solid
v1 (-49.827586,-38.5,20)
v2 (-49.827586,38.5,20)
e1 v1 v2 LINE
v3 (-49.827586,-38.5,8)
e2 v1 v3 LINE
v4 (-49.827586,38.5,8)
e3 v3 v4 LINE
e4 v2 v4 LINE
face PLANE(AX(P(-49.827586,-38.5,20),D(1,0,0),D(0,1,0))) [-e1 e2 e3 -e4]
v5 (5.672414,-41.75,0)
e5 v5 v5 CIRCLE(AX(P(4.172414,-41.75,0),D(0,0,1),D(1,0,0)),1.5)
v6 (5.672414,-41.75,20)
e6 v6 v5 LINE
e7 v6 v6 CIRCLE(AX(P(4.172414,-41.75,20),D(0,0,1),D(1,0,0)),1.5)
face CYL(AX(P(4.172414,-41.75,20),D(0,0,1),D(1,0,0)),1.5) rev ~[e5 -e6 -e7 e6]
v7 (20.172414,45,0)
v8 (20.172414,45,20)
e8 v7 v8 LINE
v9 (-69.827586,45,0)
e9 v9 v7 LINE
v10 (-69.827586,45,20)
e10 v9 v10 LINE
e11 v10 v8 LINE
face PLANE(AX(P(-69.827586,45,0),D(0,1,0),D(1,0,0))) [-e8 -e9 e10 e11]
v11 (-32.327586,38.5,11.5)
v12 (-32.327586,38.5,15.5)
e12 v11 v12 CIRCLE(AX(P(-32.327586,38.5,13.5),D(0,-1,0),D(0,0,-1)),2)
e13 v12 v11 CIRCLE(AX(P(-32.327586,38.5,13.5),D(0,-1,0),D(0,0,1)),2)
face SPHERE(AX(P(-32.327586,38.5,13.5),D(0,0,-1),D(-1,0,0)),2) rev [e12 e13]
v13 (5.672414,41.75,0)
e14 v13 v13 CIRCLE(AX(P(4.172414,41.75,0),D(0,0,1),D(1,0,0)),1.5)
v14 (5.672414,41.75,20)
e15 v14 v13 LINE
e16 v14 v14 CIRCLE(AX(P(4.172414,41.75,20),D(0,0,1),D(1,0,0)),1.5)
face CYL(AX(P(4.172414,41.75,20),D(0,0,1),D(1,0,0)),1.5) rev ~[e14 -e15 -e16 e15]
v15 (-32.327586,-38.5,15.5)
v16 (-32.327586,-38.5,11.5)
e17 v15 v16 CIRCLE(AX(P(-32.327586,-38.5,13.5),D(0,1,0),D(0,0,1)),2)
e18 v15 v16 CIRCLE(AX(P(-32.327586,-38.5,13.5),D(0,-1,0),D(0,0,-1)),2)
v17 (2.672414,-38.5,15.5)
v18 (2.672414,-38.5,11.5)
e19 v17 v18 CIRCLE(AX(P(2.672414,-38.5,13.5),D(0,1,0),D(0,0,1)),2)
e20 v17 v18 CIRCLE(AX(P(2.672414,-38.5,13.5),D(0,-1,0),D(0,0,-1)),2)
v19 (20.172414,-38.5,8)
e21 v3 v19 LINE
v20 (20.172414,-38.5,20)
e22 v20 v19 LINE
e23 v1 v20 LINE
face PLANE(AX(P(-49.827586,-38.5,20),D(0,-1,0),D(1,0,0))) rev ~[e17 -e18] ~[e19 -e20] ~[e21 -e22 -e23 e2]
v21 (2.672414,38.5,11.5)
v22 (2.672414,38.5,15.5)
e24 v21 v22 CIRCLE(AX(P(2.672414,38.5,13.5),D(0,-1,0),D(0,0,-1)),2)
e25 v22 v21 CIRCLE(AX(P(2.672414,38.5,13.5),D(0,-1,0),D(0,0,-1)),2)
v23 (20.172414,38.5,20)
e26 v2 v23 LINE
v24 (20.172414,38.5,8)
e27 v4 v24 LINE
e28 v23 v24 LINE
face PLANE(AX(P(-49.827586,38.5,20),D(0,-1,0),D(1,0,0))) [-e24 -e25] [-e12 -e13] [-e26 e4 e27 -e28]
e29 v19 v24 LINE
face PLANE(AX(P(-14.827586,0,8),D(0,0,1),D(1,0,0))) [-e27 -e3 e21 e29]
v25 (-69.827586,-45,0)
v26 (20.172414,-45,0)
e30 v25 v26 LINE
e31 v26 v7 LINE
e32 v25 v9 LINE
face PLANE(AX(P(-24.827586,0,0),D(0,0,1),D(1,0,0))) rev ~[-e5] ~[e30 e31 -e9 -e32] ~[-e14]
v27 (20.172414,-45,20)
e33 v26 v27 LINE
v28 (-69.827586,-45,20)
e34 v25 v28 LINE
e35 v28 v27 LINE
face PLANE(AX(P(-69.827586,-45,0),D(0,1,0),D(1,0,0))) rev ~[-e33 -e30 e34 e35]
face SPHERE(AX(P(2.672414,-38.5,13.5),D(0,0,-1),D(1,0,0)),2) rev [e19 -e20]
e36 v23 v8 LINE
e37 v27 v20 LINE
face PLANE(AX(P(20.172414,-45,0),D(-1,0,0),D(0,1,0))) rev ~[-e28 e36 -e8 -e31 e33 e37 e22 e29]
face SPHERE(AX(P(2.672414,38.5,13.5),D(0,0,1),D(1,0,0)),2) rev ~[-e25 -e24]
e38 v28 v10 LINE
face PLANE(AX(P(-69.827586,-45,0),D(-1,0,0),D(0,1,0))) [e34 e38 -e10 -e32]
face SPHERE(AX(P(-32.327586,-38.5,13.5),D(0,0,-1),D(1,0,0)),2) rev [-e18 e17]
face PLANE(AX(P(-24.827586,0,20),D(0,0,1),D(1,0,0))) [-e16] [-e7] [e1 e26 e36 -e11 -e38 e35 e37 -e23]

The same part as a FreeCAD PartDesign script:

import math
import FreeCAD as App
import Part
import Sketcher
Q = App.Units.Quantity

doc = App.newDocument("Part")
body = doc.addObject("PartDesign::Body", "Body")

sketch1 = body.newObject("Sketcher::SketchObject", "Sketch")
sketch1.AttachmentSupport = (doc.getObject("XY_Plane"), [""])
sketch1.MapMode = "FlatFace"
sketch1.addGeometry([
    Part.LineSegment(App.Vector(-70, 45, 0), App.Vector(-70, -45, 0)),
    Part.LineSegment(App.Vector(-70, -45, 0), App.Vector(20, -45, 0)),
    Part.LineSegment(App.Vector(20, -45, 0), App.Vector(20, 45, 0)),
    Part.LineSegment(App.Vector(20, 45, 0), App.Vector(-70, 45, 0)),
], False)
sketch1.addConstraint([
    Sketcher.Constraint("Coincident", 0, 2, 1, 1),
    Sketcher.Constraint("Coincident", 1, 2, 2, 1),
    Sketcher.Constraint("Coincident", 2, 2, 3, 1),
    Sketcher.Constraint("Coincident", 3, 2, 0, 1),
    Sketcher.Constraint("Vertical", 0),
    Sketcher.Constraint("Horizontal", 1),
    Sketcher.Constraint("Vertical", 2),
    Sketcher.Constraint("Horizontal", 3),
    Sketcher.Constraint("Equal", 3, 0),
    Sketcher.Constraint("DistanceX", 1, 1, 1, 2, Q("90 mm")),
    Sketcher.Constraint("DistanceY", 0, 2, -1, 1, Q("45 mm")),
    Sketcher.Constraint("DistanceX", 0, 2, -1, 1, Q("69.827586 mm")),
])
pad1 = body.newObject("PartDesign::Pad", "Pad")
pad1.Profile = sketch1
pad1.Length = 20

sketch2 = body.newObject("Sketcher::SketchObject", "Sketch001")
sketch2.AttachmentSupport = (doc.getObject("XY_Plane"), [""])
sketch2.MapMode = "FlatFace"
sketch2.AttachmentOffset = App.Placement(App.Vector(0, 0, 20), App.Rotation())
sketch2.addGeometry([
    Part.LineSegment(App.Vector(-50, 38, 0), App.Vector(-50, -38, 0)),
    Part.LineSegment(App.Vector(-50, -38, 0), App.Vector(20, -38, 0)),
    Part.LineSegment(App.Vector(20, -38, 0), App.Vector(20, 38, 0)),
    Part.LineSegment(App.Vector(20, 38, 0), App.Vector(-50, 38, 0)),
], False)
sketch2.addConstraint([
    Sketcher.Constraint("Coincident", 0, 2, 1, 1),
    Sketcher.Constraint("Coincident", 1, 2, 2, 1),
    Sketcher.Constraint("Coincident", 2, 2, 3, 1),
    Sketcher.Constraint("Coincident", 3, 2, 0, 1),
    Sketcher.Constraint("Vertical", 0),
    Sketcher.Constraint("Horizontal", 1),
    Sketcher.Constraint("Vertical", 2),
    Sketcher.Constraint("Horizontal", 3),
    Sketcher.Constraint("DistanceX", 1, 1, 1, 2, Q("70 mm")),
    Sketcher.Constraint("DistanceY", 0, 2, 0, 1, Q("77 mm")),
    Sketcher.Constraint("DistanceY", 0, 2, -1, 1, Q("38.5 mm")),
    Sketcher.Constraint("DistanceX", 0, 2, -1, 1, Q("49.827586 mm")),
])
pocket1 = body.newObject("PartDesign::Pocket", "Pocket")
pocket1.Profile = sketch2
pocket1.Length = 12

sketch3 = body.newObject("Sketcher::SketchObject", "Sketch002")
sketch3.AttachmentSupport = (doc.getObject("XZ_Plane"), [""])
sketch3.MapMode = "FlatFace"
sketch3.AttachmentOffset = App.Placement(App.Vector(0, 0, 38.5), App.Rotation())
sketch3.addGeometry([
    Part.LineSegment(App.Vector(-32.3, 11.5, 0), App.Vector(-32.3, 15.5, 0)),
    Part.ArcOfCircle(Part.Circle(App.Vector(-32.3, 13.5, 0), App.Vector(0, 0, 1), 2), math.radians(-90), math.radians(90)),
], False)
sketch3.addGeometry(Part.LineSegment(App.Vector(-32.3, 11.5, 0), App.Vector(-32.3, 15.5, 0)), True)
sketch3.addConstraint([
    Sketcher.Constraint("Coincident", 0, 1, 1, 1),
    Sketcher.Constraint("Coincident", 1, 2, 0, 2),
    Sketcher.Constraint("Vertical", 0),
    Sketcher.Constraint("Vertical", 2),
    Sketcher.Constraint("Coincident", 2, 1, 0, 1),
    Sketcher.Constraint("Vertical", 1, 3, 0, 1),
    Sketcher.Constraint("Equal", 0, 2),
    Sketcher.Constraint("Radius", 1, Q("2 mm")),
    Sketcher.Constraint("DistanceY", -1, 1, 1, 3, Q("13.5 mm")),
    Sketcher.Constraint("DistanceX", 1, 3, -1, 1, Q("32.327586 mm")),
])
groove = body.newObject("PartDesign::Groove", "Groove")
groove.Profile = sketch3
groove.ReferenceAxis = (sketch3, ["Axis0"])
groove.Angle = 360

sketch4 = body.newObject("Sketcher::SketchObject", "Sketch003")
sketch4.AttachmentSupport = (doc.getObject("XZ_Plane"), [""])
sketch4.MapMode = "FlatFace"
sketch4.AttachmentOffset = App.Placement(App.Vector(0, 0, 38.5), App.Rotation())
sketch4.addGeometry([
    Part.LineSegment(App.Vector(2.7, 11.5, 0), App.Vector(2.7, 15.5, 0)),
    Part.ArcOfCircle(Part.Circle(App.Vector(2.7, 13.5, 0), App.Vector(0, 0, 1), 2), math.radians(-90), math.radians(90)),
], False)
sketch4.addGeometry(Part.LineSegment(App.Vector(2.7, 11.5, 0), App.Vector(2.7, 15.5, 0)), True)
sketch4.addConstraint([
    Sketcher.Constraint("Coincident", 0, 1, 1, 1),
    Sketcher.Constraint("Coincident", 1, 2, 0, 2),
    Sketcher.Constraint("Vertical", 0),
    Sketcher.Constraint("Vertical", 2),
    Sketcher.Constraint("Coincident", 2, 1, 0, 1),
    Sketcher.Constraint("Vertical", 1, 3, 0, 1),
    Sketcher.Constraint("Equal", 0, 2),
    Sketcher.Constraint("Radius", 1, Q("2 mm")),
    Sketcher.Constraint("DistanceY", -1, 1, 1, 3, Q("13.5 mm")),
    Sketcher.Constraint("DistanceX", -1, 1, 1, 3, Q("2.672414 mm")),
])
groove2 = body.newObject("PartDesign::Groove", "Groove001")
groove2.Profile = sketch4
groove2.ReferenceAxis = (sketch4, ["Axis0"])
groove2.Angle = 360

sketch5 = body.newObject("Sketcher::SketchObject", "Sketch004")
sketch5.AttachmentSupport = (doc.getObject("XZ_Plane"), [""])
sketch5.MapMode = "FlatFace"
sketch5.AttachmentOffset = App.Placement(App.Vector(0, 0, -38.5), App.Rotation())
sketch5.addGeometry([
    Part.LineSegment(App.Vector(2.7, 15.5, 0), App.Vector(2.7, 11.5, 0)),
    Part.ArcOfCircle(Part.Circle(App.Vector(2.7, 13.5, 0), App.Vector(0, 0, 1), 2), math.radians(-90), math.radians(90)),
], False)
sketch5.addGeometry(Part.LineSegment(App.Vector(2.7, 11.5, 0), App.Vector(2.7, 15.5, 0)), True)
sketch5.addConstraint([
    Sketcher.Constraint("Coincident", 0, 1, 1, 2),
    Sketcher.Constraint("Coincident", 1, 1, 0, 2),
    Sketcher.Constraint("Vertical", 0),
    Sketcher.Constraint("Vertical", 2),
    Sketcher.Constraint("Coincident", 2, 1, 1, 1),
    Sketcher.Constraint("Vertical", 1, 3, 0, 1),
    Sketcher.Constraint("Equal", 0, 2),
    Sketcher.Constraint("Radius", 1, Q("2 mm")),
    Sketcher.Constraint("DistanceY", -1, 1, 1, 3, Q("13.5 mm")),
    Sketcher.Constraint("DistanceX", -1, 1, 1, 3, Q("2.672414 mm")),
])
groove3 = body.newObject("PartDesign::Groove", "Groove002")
groove3.Profile = sketch5
groove3.ReferenceAxis = (sketch5, ["Axis0"])
groove3.Angle = 360

sketch6 = body.newObject("Sketcher::SketchObject", "Sketch005")
sketch6.AttachmentSupport = (doc.getObject("XZ_Plane"), [""])
sketch6.MapMode = "FlatFace"
sketch6.AttachmentOffset = App.Placement(App.Vector(0, 0, -38.5), App.Rotation())
sketch6.addGeometry([
    Part.LineSegment(App.Vector(-32.3, 11.5, 0), App.Vector(-32.3, 15.5, 0)),
    Part.ArcOfCircle(Part.Circle(App.Vector(-32.3, 13.5, 0), App.Vector(0, 0, 1), 2), math.radians(90), math.radians(270)),
], False)
sketch6.addGeometry(Part.LineSegment(App.Vector(-32.3, 11.5, 0), App.Vector(-32.3, 15.5, 0)), True)
sketch6.addConstraint([
    Sketcher.Constraint("Coincident", 0, 1, 1, 2),
    Sketcher.Constraint("Coincident", 1, 1, 0, 2),
    Sketcher.Constraint("Vertical", 0),
    Sketcher.Constraint("Vertical", 2),
    Sketcher.Constraint("Coincident", 2, 1, 0, 1),
    Sketcher.Constraint("Vertical", 1, 3, 0, 1),
    Sketcher.Constraint("Equal", 0, 2),
    Sketcher.Constraint("Radius", 1, Q("2 mm")),
    Sketcher.Constraint("DistanceY", -1, 1, 1, 3, Q("13.5 mm")),
    Sketcher.Constraint("DistanceX", 1, 3, -1, 1, Q("32.327586 mm")),
])
groove4 = body.newObject("PartDesign::Groove", "Groove003")
groove4.Profile = sketch6
groove4.ReferenceAxis = (sketch6, ["Axis0"])
groove4.Angle = 360

sketch7 = body.newObject("Sketcher::SketchObject", "Sketch006")
sketch7.AttachmentSupport = (doc.getObject("XY_Plane"), [""])
sketch7.MapMode = "FlatFace"
sketch7.AttachmentOffset = App.Placement(App.Vector(0, 0, 20), App.Rotation())
sketch7.addGeometry([
    Part.Circle(App.Vector(4.2, -41.8, 0), App.Vector(0, 0, 1), 1.5),
    Part.Circle(App.Vector(4.2, 41.8, 0), App.Vector(0, 0, 1), 1.5),
], False)
sketch7.addConstraint([
    Sketcher.Constraint("Equal", 0, 1),
    Sketcher.Constraint("Symmetric", 0, 3, 1, 3, -1),
    Sketcher.Constraint("Diameter", 0, Q("3 mm")),
    Sketcher.Constraint("DistanceY", 0, 3, 1, 3, Q("83.5 mm")),
    Sketcher.Constraint("DistanceX", -1, 1, 0, 3, Q("4.172414 mm")),
])
pocket2 = body.newObject("PartDesign::Pocket", "Pocket001")
pocket2.Profile = sketch7
pocket2.Length = 25

doc.recompute()
